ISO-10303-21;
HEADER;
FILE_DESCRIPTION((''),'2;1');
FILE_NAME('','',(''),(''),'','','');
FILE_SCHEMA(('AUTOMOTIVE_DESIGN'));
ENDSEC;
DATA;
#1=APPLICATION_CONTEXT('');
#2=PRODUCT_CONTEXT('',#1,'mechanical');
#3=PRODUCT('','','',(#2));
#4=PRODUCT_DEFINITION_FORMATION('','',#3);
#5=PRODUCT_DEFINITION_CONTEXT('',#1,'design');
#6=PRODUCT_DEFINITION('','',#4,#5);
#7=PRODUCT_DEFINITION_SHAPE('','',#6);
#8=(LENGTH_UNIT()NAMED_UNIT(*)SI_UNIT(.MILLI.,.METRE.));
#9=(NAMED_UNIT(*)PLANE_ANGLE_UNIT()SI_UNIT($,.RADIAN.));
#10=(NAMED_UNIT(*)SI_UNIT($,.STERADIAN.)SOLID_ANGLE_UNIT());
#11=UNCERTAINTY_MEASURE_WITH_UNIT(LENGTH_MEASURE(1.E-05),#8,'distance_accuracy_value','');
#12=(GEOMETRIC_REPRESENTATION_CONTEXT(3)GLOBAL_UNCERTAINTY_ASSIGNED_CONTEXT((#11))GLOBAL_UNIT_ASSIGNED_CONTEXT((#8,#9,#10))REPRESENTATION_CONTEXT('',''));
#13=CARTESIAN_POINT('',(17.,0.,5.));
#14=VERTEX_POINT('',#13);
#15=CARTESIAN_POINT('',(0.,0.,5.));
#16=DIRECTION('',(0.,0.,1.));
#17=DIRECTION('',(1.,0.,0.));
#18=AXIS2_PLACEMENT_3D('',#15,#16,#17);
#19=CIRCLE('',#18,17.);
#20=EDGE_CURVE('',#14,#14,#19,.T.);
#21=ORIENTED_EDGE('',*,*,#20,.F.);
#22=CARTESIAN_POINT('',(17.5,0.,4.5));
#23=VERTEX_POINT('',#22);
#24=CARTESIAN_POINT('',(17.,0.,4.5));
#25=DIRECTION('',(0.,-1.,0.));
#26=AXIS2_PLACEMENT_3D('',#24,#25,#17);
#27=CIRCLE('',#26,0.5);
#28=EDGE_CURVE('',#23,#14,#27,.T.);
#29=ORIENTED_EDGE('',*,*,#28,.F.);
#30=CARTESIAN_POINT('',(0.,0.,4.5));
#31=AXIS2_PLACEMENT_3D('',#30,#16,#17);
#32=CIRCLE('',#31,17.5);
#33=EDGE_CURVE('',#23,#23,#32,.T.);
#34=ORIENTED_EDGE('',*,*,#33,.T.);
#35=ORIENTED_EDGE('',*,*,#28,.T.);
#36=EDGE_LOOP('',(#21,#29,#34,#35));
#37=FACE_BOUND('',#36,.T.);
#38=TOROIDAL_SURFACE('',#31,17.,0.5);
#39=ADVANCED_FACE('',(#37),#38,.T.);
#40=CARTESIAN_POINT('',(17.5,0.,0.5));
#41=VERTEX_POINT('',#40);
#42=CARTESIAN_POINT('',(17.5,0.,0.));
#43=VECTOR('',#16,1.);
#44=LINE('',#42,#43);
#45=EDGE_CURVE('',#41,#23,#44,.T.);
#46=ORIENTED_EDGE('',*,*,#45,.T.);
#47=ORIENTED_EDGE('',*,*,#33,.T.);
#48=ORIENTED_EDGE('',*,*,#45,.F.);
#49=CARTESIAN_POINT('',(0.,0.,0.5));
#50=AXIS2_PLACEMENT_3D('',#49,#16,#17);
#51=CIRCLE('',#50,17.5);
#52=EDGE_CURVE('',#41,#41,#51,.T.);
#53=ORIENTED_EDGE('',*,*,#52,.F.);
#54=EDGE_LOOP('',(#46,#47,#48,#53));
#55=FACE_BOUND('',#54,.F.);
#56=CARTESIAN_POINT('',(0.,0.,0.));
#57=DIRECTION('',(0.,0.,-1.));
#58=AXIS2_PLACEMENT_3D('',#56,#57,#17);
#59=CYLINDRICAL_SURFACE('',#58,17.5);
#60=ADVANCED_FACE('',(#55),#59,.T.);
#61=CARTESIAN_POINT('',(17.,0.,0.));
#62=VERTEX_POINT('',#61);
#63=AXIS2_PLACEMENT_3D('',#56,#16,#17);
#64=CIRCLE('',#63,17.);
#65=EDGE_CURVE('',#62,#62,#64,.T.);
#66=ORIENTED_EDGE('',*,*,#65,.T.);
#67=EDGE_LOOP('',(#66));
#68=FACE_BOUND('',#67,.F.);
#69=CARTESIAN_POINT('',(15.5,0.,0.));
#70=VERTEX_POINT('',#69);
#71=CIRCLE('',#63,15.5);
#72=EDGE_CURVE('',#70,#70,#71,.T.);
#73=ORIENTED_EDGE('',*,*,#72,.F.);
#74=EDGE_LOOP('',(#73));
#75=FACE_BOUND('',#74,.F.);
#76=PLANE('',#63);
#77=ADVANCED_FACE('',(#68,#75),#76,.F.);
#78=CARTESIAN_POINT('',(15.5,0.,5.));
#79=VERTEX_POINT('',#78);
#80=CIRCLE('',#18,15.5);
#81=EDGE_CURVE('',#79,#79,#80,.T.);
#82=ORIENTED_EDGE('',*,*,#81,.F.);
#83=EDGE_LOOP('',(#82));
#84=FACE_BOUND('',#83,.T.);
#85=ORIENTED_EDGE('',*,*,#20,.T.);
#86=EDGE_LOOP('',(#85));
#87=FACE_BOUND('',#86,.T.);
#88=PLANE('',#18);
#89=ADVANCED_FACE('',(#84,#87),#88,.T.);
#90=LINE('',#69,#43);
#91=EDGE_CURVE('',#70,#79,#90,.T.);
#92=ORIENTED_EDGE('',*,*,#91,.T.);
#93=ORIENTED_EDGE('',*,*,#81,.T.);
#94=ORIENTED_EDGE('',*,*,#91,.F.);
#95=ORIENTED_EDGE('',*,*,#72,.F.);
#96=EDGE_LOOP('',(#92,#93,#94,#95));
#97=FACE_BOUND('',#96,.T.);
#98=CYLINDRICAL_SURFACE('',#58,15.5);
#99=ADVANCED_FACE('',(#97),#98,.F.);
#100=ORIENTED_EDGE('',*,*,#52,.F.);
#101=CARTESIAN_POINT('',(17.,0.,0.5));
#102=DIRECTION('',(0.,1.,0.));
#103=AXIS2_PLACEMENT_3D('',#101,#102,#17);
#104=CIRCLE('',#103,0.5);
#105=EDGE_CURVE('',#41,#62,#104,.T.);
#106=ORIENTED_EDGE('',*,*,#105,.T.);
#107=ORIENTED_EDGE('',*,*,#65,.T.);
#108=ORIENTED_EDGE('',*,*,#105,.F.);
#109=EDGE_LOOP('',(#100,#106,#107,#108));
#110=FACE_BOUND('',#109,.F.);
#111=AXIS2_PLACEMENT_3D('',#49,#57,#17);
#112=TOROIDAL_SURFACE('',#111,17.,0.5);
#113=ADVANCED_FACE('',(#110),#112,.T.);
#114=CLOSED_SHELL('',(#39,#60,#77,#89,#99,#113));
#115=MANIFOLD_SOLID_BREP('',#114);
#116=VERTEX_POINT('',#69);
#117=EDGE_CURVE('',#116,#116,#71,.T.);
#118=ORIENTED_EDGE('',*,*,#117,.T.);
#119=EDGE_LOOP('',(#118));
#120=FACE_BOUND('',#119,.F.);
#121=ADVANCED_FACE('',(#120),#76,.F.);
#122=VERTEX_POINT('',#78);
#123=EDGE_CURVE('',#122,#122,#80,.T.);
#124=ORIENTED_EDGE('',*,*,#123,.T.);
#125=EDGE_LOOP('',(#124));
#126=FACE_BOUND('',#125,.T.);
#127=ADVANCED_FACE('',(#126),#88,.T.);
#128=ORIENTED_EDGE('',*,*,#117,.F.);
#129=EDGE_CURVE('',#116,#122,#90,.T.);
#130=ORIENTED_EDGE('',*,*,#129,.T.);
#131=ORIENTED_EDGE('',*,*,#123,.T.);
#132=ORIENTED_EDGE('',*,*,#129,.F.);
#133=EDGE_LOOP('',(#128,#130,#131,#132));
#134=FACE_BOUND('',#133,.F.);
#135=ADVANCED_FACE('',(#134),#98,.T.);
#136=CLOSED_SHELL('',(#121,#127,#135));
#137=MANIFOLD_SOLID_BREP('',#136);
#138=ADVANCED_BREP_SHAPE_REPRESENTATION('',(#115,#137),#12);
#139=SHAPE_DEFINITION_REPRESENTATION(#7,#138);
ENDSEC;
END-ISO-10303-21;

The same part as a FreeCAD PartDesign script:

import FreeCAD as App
import Part
import Sketcher
from FreeCAD import Vector


def edges_at(feature, points):
    """Names of the edges that pass closest to the given points."""
    edges = feature.Shape.Edges
    near = lambda p: min(range(len(edges)), key=lambda i: edges[i].distToShape(Part.Vertex(*p))[0])
    return sorted({f"Edge{near(p) + 1}" for p in points})

doc = App.newDocument("Part")
body = doc.addObject("PartDesign::Body", "Body")

# Sketch on XY plane
sketch1 = body.newObject("Sketcher::SketchObject", "Sketch")
sketch1.AttachmentSupport = (doc.getObject("XY_Plane"), [""])
sketch1.MapMode = "FlatFace"
sketch1.addGeometry([
    Part.Circle(Vector(0, 0, 0), Vector(0, 0, 1), 18),
    Part.Circle(Vector(0, 0, 0), Vector(0, 0, 1), 16),
], False)
sketch1.addConstraint([
    Sketcher.Constraint("Coincident", 0, 3, -1, 1),
    Sketcher.Constraint("Coincident", 1, 3, -1, 1),
    Sketcher.Constraint("Diameter", 0, 35.0),
    Sketcher.Constraint("Diameter", 1, 31.0),
])
pad1 = body.newObject("PartDesign::Pad", "Pad")
pad1.Profile = sketch1
pad1.Length = 5
doc.recompute()

fillet = body.newObject("PartDesign::Fillet", "Fillet")
fillet.Base = (pad1, edges_at(pad1, [(-17.5, 0, 5), (-17.5, 0, 0)]))
fillet.Radius = 0.5
body2 = doc.addObject("PartDesign::Body", "Body001")

# Sketch on XY plane
sketch2 = body2.newObject("Sketcher::SketchObject", "Sketch001")
sketch2.AttachmentSupport = (doc.getObject("XY_Plane001"), [""])
sketch2.MapMode = "FlatFace"
sketch2.addGeometry(Part.Circle(Vector(0, 0, 0), Vector(0, 0, 1), 16), False)
sketch2.addConstraint([
    Sketcher.Constraint("Coincident", 0, 3, -1, 1),
    Sketcher.Constraint("Diameter", 0, 31.0),
])
pad2 = body2.newObject("PartDesign::Pad", "Pad001")
pad2.Profile = sketch2
pad2.Length = 5

doc.recompute()
